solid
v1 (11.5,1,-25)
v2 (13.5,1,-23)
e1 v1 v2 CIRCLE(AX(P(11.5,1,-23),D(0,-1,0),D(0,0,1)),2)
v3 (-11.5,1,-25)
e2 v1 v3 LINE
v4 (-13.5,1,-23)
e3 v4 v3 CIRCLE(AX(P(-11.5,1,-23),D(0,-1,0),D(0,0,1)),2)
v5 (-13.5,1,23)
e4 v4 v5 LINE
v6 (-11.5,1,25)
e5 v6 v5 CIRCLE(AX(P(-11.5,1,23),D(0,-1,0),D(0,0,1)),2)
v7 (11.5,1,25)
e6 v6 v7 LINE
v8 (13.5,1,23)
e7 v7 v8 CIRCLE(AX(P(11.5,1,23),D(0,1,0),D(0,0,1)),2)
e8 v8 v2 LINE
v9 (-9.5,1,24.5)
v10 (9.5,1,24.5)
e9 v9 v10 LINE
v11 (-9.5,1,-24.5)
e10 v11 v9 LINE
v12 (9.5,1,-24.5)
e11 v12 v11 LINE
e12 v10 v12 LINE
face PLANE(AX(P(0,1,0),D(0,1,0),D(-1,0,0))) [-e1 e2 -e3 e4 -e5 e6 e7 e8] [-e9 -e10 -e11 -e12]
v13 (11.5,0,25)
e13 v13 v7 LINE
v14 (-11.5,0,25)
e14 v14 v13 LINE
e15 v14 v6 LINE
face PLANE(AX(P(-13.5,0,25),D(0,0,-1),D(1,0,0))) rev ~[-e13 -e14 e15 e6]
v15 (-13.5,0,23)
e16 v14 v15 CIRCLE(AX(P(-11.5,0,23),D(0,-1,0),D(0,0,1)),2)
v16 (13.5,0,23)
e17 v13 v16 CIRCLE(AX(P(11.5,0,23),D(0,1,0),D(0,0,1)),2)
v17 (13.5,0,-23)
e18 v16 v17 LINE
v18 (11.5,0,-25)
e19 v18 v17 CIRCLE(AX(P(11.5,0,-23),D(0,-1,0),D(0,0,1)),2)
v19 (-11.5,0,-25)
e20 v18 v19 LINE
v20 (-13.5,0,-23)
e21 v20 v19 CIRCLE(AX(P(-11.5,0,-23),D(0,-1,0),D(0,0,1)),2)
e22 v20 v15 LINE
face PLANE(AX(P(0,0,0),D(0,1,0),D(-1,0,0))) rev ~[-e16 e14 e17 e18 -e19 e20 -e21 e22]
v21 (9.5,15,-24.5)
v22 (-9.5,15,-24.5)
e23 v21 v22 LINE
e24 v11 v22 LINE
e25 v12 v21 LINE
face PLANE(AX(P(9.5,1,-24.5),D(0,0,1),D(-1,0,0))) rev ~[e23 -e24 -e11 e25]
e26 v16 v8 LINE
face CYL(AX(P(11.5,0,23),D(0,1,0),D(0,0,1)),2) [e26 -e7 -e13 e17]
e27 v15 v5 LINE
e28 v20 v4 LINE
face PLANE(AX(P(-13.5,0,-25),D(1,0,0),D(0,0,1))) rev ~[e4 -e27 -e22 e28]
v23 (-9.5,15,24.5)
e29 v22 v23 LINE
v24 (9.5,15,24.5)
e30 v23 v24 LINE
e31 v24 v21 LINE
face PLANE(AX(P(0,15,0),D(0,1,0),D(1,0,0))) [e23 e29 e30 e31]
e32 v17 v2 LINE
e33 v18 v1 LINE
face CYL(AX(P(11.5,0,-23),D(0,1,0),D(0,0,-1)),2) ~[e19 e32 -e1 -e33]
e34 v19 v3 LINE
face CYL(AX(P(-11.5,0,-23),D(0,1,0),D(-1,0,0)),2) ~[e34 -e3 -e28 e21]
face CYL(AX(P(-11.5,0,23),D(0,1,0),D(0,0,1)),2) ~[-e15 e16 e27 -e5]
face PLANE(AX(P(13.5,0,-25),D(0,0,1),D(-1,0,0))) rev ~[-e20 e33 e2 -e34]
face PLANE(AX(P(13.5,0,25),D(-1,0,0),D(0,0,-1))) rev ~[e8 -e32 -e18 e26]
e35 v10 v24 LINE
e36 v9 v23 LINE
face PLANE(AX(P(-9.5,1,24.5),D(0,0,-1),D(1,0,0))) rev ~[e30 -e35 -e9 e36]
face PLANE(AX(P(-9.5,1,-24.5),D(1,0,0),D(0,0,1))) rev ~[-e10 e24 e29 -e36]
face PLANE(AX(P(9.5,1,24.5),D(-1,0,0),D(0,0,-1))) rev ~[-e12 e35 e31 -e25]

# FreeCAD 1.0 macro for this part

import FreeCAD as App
import Part
import Sketcher

V = App.Vector


def edges_at(feature, points):
    """Names of the edges that pass closest to the given points."""
    edges = feature.Shape.Edges
    near = lambda p: min(range(len(edges)), key=lambda i: edges[i].distToShape(Part.Vertex(*p))[0])
    return sorted({f"Edge{near(p) + 1}" for p in points})


def add_polygon(sketch, points):
    """Adds a closed chain of lines whose ends are joined by coincident constraints."""
    first, n = sketch.GeometryCount, len(points)
    for a, b in zip(points, points[1:] + points[:1]):
        sketch.addGeometry(Part.LineSegment(App.Vector(*a, 0), App.Vector(*b, 0)), False)
    for i in range(n):
        sketch.addConstraint(Sketcher.Constraint("Coincident", first + i, 2, first + (i + 1) % n, 1))

doc = App.newDocument("Part")
body = doc.addObject("PartDesign::Body", "Body")

sketch1 = doc.addObject("Sketcher::SketchObject", "Sketch")
body.addObject(sketch1)
sketch1.AttachmentSupport = (doc.XZ_Plane, [""])
sketch1.MapMode = "FlatFace"
add_polygon(sketch1, [(-14, 25), (14, 25), (14, -25), (-14, -25)])
sketch1.addConstraint(Sketcher.Constraint("Horizontal", 0))
sketch1.addConstraint(Sketcher.Constraint("Vertical", 1))
sketch1.addConstraint(Sketcher.Constraint("Horizontal", 2))
sketch1.addConstraint(Sketcher.Constraint("Vertical", 3))
sketch1.addConstraint(Sketcher.Constraint("Symmetric", 0, 2, 2, 2, -1, 1))
sketch1.addConstraint(Sketcher.Constraint("DistanceX", 0, 1, 0, 2, 27.0))
sketch1.addConstraint(Sketcher.Constraint("DistanceY", 1, 2, 1, 1, 50.0))
pad1 = doc.addObject("PartDesign::Pad", "Pad")
body.addObject(pad1)
pad1.Profile = sketch1
pad1.Length = 1
pad1.Reversed = True
doc.recompute()

fillet = doc.addObject("PartDesign::Fillet", "Fillet")
body.addObject(fillet)
fillet.Base = (pad1, edges_at(pad1, [
    (13.5, 0.5, 25),
    (-13.5, 0.5, 25),
    (-13.5, 0.5, -25),
    (13.5, 0.5, -25),
]))
fillet.Radius = 2

sketch2 = doc.addObject("Sketcher::SketchObject", "Sketch001")
body.addObject(sketch2)
sketch2.AttachmentSupport = (doc.XZ_Plane, [""])
sketch2.MapMode = "FlatFace"
sketch2.AttachmentOffset = App.Placement(V(0, 0, -1), App.Rotation())
add_polygon(sketch2, [(-10, 24), (10, 24), (10, -24), (-10, -24)])
sketch2.addConstraint(Sketcher.Constraint("Horizontal", 0))
sketch2.addConstraint(Sketcher.Constraint("Vertical", 1))
sketch2.addConstraint(Sketcher.Constraint("Horizontal", 2))
sketch2.addConstraint(Sketcher.Constraint("Vertical", 3))
sketch2.addConstraint(Sketcher.Constraint("Symmetric", 0, 2, 2, 2, -1, 1))
sketch2.addConstraint(Sketcher.Constraint("DistanceX", 0, 1, 0, 2, 19.0))
sketch2.addConstraint(Sketcher.Constraint("DistanceY", 1, 2, 1, 1, 49.0))
pad2 = doc.addObject("PartDesign::Pad", "Pad001")
body.addObject(pad2)
pad2.Profile = sketch2
pad2.Length = 14
pad2.Reversed = True

doc.recompute()
